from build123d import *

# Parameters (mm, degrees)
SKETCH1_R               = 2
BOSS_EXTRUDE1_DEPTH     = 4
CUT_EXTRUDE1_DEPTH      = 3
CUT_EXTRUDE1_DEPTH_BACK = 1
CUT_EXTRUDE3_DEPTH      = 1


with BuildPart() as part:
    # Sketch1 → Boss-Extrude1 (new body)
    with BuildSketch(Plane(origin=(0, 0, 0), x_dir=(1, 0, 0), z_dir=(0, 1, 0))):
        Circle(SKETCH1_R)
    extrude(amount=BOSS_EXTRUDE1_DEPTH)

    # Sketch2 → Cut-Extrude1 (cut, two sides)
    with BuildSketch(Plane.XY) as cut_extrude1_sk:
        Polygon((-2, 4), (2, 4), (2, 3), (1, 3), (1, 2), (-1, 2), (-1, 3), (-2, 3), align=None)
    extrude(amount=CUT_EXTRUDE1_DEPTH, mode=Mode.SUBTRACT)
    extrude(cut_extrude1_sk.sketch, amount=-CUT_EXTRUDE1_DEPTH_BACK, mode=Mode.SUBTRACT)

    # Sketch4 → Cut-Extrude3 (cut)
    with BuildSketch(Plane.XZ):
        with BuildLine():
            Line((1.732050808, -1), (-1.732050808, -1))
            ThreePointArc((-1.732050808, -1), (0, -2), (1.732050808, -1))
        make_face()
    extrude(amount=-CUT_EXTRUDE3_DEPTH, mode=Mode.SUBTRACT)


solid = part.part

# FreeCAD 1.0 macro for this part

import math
import FreeCAD as App
import Part
import Sketcher
from FreeCAD import Vector

doc = App.newDocument("Part")
body = doc.addObject("PartDesign::Body", "Body")

sketch1 = body.newObject("Sketcher::SketchObject", "Sketch")
sketch1.AttachmentSupport = (doc.getObject("XZ_Plane"), [""])
sketch1.MapMode = "FlatFace"
sketch1.addGeometry(Part.Circle(Vector(0, 0, 0), Vector(0, 0, 1), 2), False)
sketch1.addConstraint([
    Sketcher.Constraint("Coincident", 0, 3, -1, 1),
    Sketcher.Constraint("Diameter", 0, 4.0),
])
pad1 = body.newObject("PartDesign::Pad", "Pad")
pad1.Profile = sketch1
pad1.Length = 4
pad1.Reversed = True

sketch2 = body.newObject("Sketcher::SketchObject", "Sketch001")
sketch2.AttachmentSupport = (doc.getObject("XY_Plane"), [""])
sketch2.MapMode = "FlatFace"
sketch2.addGeometry([
    Part.LineSegment(Vector(2, 4, 0), Vector(-2, 4, 0)),
    Part.LineSegment(Vector(-2, 4, 0), Vector(-2, 3, 0)),
    Part.LineSegment(Vector(-2, 3, 0), Vector(-1, 3, 0)),
    Part.LineSegment(Vector(-1, 3, 0), Vector(-1, 2, 0)),
    Part.LineSegment(Vector(-1, 2, 0), Vector(1, 2, 0)),
    Part.LineSegment(Vector(1, 2, 0), Vector(1, 3, 0)),
    Part.LineSegment(Vector(1, 3, 0), Vector(2, 3, 0)),
    Part.LineSegment(Vector(2, 3, 0), Vector(2, 4, 0)),
], False)
sketch2.addConstraint([
    Sketcher.Constraint("Coincident", 0, 2, 1, 1),
    Sketcher.Constraint("Coincident", 1, 2, 2, 1),
    Sketcher.Constraint("Coincident", 2, 2, 3, 1),
    Sketcher.Constraint("Coincident", 3, 2, 4, 1),
    Sketcher.Constraint("Coincident", 4, 2, 5, 1),
    Sketcher.Constraint("Coincident", 5, 2, 6, 1),
    Sketcher.Constraint("Coincident", 6, 2, 7, 1),
    Sketcher.Constraint("Coincident", 7, 2, 0, 1),
    Sketcher.Constraint("Horizontal", 0),
    Sketcher.Constraint("Vertical", 1),
    Sketcher.Constraint("Horizontal", 2),
    Sketcher.Constraint("Vertical", 3),
    Sketcher.Constraint("Horizontal", 4),
    Sketcher.Constraint("Vertical", 5),
    Sketcher.Constraint("Horizontal", 6),
    Sketcher.Constraint("Vertical", 7),
    Sketcher.Constraint("Symmetric", 2, 2, 5, 2, -2),
    Sketcher.Constraint("Equal", 2, 6),
    Sketcher.Constraint("Equal", 6, 1),
    Sketcher.Constraint("Equal", 1, 3),
    Sketcher.Constraint("DistanceX", 0, 2, 0, 1, 4.0),
    Sketcher.Constraint("DistanceX", 2, 1, 2, 2, 1.0),
    Sketcher.Constraint("DistanceY", -1, 1, 0, 2, 4.0),
])
pocket1 = body.newObject("PartDesign::Pocket", "Pocket")
pocket1.Profile = sketch2
pocket1.Type = "TwoLengths"
pocket1.Length = 3
pocket1.Length2 = 1
pocket1.Reversed = True

sketch3 = body.newObject("Sketcher::SketchObject", "Sketch002")
sketch3.AttachmentSupport = (doc.getObject("XZ_Plane"), [""])
sketch3.MapMode = "FlatFace"
sketch3.addGeometry([
    Part.LineSegment(Vector(1.7, -1, 0), Vector(-1.7, -1, 0)),
    Part.ArcOfCircle(Part.Circle(Vector(0, 0, 0), Vector(0, 0, 1), 2), math.radians(-150), math.radians(-30)),
], False)
sketch3.addConstraint([
    Sketcher.Constraint("Coincident", 0, 1, 1, 2),
    Sketcher.Constraint("Coincident", 1, 1, 0, 2),
    Sketcher.Constraint("Horizontal", 0),
    Sketcher.Constraint("Coincident", 1, 3, -1, 1),
    Sketcher.Constraint("Radius", 1, 2.0),
    Sketcher.Constraint("DistanceY", 0, 1, -1, 1, 1.0),
])
pocket2 = body.newObject("PartDesign::Pocket", "Pocket001")
pocket2.Profile = sketch3
pocket2.Length = 1

doc.recompute()
